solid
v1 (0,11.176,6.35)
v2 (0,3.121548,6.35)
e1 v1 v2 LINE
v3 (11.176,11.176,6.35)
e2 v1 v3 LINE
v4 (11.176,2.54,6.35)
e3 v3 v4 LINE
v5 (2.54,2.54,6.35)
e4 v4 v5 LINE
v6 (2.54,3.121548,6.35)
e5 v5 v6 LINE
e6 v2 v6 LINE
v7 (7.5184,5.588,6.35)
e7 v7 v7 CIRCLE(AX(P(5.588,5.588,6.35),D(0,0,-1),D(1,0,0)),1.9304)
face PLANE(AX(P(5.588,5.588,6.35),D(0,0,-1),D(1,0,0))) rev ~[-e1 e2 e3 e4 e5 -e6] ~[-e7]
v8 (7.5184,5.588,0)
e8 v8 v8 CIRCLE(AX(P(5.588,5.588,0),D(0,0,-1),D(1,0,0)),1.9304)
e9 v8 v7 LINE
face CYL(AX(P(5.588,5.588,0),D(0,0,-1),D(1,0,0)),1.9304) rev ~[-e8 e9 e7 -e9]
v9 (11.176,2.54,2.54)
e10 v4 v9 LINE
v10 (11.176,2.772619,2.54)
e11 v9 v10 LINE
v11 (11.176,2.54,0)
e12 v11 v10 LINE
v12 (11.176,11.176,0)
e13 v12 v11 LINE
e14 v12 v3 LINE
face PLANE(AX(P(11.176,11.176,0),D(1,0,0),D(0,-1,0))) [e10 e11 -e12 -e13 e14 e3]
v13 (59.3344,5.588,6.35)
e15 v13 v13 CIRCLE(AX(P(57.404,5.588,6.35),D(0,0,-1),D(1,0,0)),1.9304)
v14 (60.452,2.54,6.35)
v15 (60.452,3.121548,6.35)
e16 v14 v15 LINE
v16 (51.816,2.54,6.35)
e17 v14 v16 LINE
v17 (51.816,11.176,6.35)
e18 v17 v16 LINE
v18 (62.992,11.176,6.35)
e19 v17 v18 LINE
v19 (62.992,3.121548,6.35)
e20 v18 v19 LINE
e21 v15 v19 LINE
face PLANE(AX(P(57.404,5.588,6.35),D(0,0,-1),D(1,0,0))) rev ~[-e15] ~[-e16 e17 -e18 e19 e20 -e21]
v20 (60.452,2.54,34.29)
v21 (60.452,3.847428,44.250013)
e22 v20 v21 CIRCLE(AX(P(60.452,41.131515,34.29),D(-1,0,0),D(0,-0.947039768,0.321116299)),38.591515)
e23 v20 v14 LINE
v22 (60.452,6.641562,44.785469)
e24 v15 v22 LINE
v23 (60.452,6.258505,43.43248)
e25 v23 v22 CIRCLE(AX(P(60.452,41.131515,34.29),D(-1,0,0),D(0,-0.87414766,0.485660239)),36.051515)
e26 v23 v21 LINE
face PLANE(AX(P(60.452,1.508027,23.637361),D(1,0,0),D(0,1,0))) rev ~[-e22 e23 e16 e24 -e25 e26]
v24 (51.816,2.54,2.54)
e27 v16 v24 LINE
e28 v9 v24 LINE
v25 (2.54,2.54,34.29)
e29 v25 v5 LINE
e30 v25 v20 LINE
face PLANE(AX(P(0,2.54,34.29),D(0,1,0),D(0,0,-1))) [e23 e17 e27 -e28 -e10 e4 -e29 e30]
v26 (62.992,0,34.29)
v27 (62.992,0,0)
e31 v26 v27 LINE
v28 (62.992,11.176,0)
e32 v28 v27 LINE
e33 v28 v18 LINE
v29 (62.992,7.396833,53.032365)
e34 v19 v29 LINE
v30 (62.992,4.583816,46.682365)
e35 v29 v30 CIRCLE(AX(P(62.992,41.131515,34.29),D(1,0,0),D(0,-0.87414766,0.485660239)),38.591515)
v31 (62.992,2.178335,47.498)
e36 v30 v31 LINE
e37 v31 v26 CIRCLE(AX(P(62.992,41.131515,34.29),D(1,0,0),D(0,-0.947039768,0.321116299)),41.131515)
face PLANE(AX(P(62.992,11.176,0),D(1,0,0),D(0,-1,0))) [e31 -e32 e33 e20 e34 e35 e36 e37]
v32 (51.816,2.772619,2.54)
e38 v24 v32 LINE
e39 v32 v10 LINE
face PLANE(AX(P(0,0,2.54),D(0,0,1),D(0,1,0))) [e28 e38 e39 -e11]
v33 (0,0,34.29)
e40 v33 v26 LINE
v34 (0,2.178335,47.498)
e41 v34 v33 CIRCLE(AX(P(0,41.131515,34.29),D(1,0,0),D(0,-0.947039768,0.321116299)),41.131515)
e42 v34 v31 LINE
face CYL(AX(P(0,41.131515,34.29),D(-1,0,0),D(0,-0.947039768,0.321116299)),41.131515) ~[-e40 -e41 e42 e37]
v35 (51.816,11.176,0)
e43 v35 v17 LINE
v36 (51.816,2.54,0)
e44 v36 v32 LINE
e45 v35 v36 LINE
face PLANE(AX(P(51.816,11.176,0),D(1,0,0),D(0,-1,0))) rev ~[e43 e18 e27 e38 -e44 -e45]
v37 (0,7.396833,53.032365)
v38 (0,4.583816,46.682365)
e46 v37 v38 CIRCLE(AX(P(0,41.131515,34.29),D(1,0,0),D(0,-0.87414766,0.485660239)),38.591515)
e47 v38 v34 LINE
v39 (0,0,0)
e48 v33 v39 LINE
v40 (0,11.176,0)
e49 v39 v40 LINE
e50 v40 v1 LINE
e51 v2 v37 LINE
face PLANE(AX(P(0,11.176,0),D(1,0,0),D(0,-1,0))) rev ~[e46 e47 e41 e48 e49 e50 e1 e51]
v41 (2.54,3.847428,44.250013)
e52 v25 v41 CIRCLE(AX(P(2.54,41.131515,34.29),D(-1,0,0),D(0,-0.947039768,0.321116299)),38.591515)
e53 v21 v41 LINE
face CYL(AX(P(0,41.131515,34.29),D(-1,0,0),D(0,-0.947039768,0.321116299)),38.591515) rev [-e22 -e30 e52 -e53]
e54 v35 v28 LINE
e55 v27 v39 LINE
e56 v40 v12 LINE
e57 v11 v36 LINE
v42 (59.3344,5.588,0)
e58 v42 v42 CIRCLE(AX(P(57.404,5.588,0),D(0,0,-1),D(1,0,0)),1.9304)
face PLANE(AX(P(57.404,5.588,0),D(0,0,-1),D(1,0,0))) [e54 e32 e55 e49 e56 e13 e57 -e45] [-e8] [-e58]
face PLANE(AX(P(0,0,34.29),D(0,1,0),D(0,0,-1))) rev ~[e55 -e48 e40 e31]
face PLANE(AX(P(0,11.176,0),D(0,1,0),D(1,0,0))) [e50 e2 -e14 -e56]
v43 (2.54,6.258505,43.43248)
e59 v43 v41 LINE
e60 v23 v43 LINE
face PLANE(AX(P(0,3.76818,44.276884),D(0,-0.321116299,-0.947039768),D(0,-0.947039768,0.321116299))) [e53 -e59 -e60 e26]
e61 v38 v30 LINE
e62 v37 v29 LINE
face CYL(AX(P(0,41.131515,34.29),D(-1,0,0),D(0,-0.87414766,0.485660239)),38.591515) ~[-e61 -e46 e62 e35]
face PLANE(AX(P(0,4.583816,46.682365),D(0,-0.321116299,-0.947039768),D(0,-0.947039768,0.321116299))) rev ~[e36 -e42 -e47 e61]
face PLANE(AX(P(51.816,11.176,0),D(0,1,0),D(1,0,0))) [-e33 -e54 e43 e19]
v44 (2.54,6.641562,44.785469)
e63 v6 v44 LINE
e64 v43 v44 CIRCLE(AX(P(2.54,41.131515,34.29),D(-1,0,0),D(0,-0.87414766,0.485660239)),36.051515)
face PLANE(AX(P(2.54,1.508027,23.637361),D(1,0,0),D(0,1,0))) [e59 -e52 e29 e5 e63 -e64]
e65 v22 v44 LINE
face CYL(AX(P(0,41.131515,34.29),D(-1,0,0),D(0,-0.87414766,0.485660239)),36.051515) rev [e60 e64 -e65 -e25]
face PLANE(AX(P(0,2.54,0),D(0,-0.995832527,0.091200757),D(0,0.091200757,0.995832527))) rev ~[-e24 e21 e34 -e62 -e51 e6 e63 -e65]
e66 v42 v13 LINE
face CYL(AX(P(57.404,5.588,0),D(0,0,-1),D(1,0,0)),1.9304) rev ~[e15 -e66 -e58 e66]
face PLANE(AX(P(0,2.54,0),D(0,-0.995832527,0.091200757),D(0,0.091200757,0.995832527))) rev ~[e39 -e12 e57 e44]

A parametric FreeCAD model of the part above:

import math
import FreeCAD as App
import Part
import Sketcher
Q = App.Units.Quantity


def faces_at(feature, points):
    """Names of the faces that lie closest to the given points."""
    faces = feature.Shape.Faces
    near = lambda p: min(range(len(faces)), key=lambda i: faces[i].distToShape(Part.Vertex(*p))[0])
    return sorted({f"Face{near(p) + 1}" for p in points})


def add_polygon(sketch, points):
    """Adds a closed chain of lines whose ends are joined by coincident constraints."""
    first, n = sketch.GeometryCount, len(points)
    for a, b in zip(points, points[1:] + points[:1]):
        sketch.addGeometry(Part.LineSegment(App.Vector(*a, 0), App.Vector(*b, 0)), False)
    for i in range(n):
        sketch.addConstraint(Sketcher.Constraint("Coincident", first + i, 2, first + (i + 1) % n, 1))

doc = App.newDocument("Part")
params = doc.addObject("Spreadsheet::Sheet", "Params")
for row, (alias, value) in enumerate([
    ("sketch1_width", "0.1 in"),
    ("sketch1_length", "0.1 in"),
    ("sketch1_height", "1.35 in"),
    ("pad1_length", "2.48 in"),
    ("thickness_wall", "0.1 in"),
    ("sketch2_diameter", "0.152 in"),
    ("sketch2_width", "0.44 in"),
    ("pad2_length", "0.25 in"),
], start=1):
    params.set(f"A{row}", alias)
    params.set(f"B{row}", "=" + value)
    params.setAlias(f"B{row}", alias)

body = doc.addObject("PartDesign::Body", "Body")

# Sketch on YZ plane
sketch1 = doc.addObject("Sketcher::SketchObject", "Sketch")
body.addObject(sketch1)
sketch1.AttachmentSupport = (doc.YZ_Plane, [""])
sketch1.MapMode = "FlatFace"
sketch1.addGeometry(Part.LineSegment(App.Vector(0, 34.3, 0), App.Vector(0, 0, 0)), False)
sketch1.addGeometry(Part.LineSegment(App.Vector(0, 0, 0), App.Vector(2.5, 0, 0)), False)
sketch1.addGeometry(Part.LineSegment(App.Vector(2.5, 0, 0), App.Vector(7.4, 53, 0)), False)
sketch1.addGeometry(Part.ArcOfCircle(Part.Circle(App.Vector(41.1, 34.3, 0), App.Vector(0, 0, 1), 38.6), math.radians(150.94), math.radians(161.27)), False)
sketch1.addGeometry(Part.LineSegment(App.Vector(4.6, 46.7, 0), App.Vector(2.2, 47.5, 0)), False)
sketch1.addGeometry(Part.ArcOfCircle(Part.Circle(App.Vector(41.1, 34.3, 0), App.Vector(0, 0, 1), 41.1), math.radians(161.27), math.radians(180)), False)
sketch1.addConstraint(Sketcher.Constraint("Coincident", 0, 2, 1, 1))
sketch1.addConstraint(Sketcher.Constraint("Coincident", 1, 2, 2, 1))
sketch1.addConstraint(Sketcher.Constraint("Coincident", 2, 2, 3, 1))
sketch1.addConstraint(Sketcher.Constraint("Coincident", 3, 2, 4, 1))
sketch1.addConstraint(Sketcher.Constraint("Coincident", 4, 2, 5, 1))
sketch1.addConstraint(Sketcher.Constraint("Tangent", 5, 2, 0, 1))
sketch1.addConstraint(Sketcher.Constraint("Vertical", 0))
sketch1.addConstraint(Sketcher.Constraint("Horizontal", 1))
sketch1.addConstraint(Sketcher.Constraint("Coincident", 0, 2, -1, 1))
sketch1.addConstraint(Sketcher.Constraint("Coincident", 5, 3, 3, 3))
sketch1.addConstraint(Sketcher.Constraint("DistanceX", 1, 1, 1, 2, Q("0.1 in")))
sketch1.addConstraint(Sketcher.Constraint("Distance", 4, Q("0.1 in")))
sketch1.addConstraint(Sketcher.Constraint("DistanceY", 0, 2, 0, 1, Q("1.35 in")))
sketch1.addConstraint(Sketcher.Constraint("DistanceY", -1, 1, 4, 2, Q("1.87 in")))
sketch1.addConstraint(Sketcher.Constraint("DistanceY", 3, 2, 2, 2, Q("0.25 in")))
sketch1.addConstraint(Sketcher.Constraint("Radius", 3, Q("38.591515 mm")))
sketch1.addConstraint(Sketcher.Constraint("Distance", 2, Q("53.2543 mm")))
sketch1.setExpression("Constraints[10]", "Params.sketch1_width")
sketch1.setExpression("Constraints[11]", "Params.sketch1_length")
sketch1.setExpression("Constraints[12]", "Params.sketch1_height")
pad1 = doc.addObject("PartDesign::Pad", "Pad")
body.addObject(pad1)
pad1.Profile = sketch1
pad1.setExpression("Length", "Params.pad1_length")
doc.recompute()

thickness = doc.addObject("PartDesign::Thickness", "Thickness")
body.addObject(thickness)
thickness.Base = (pad1, faces_at(pad1, [(31.496, 4.968, 26.516)]))
thickness.setExpression("Value", "Params.thickness_wall")
thickness.Reversed = True
thickness.Join = "Intersection"

# Sketch on XY plane
sketch2 = doc.addObject("Sketcher::SketchObject", "Sketch001")
body.addObject(sketch2)
sketch2.AttachmentSupport = (doc.XY_Plane, [""])
sketch2.MapMode = "FlatFace"
add_polygon(sketch2, [(51.8, 0), (51.8, 11.2), (63, 11.2), (63, 0)])  # lines 0-3
sketch2.addGeometry(Part.Circle(App.Vector(57.4, 5.6, 0), App.Vector(0, 0, 1), 1.9), False)  # 4
add_polygon(sketch2, [(0, 0), (0, 11.2), (11.2, 11.2), (11.2, 0)])  # lines 5-8
sketch2.addGeometry(Part.Circle(App.Vector(5.6, 5.6, 0), App.Vector(0, 0, 1), 1.9), False)  # 9
sketch2.addConstraint(Sketcher.Constraint("Vertical", 0))
sketch2.addConstraint(Sketcher.Constraint("Horizontal", 1))
sketch2.addConstraint(Sketcher.Constraint("Vertical", 2))
sketch2.addConstraint(Sketcher.Constraint("Horizontal", 3))
sketch2.addConstraint(Sketcher.Constraint("Vertical", 5))
sketch2.addConstraint(Sketcher.Constraint("Horizontal", 6))
sketch2.addConstraint(Sketcher.Constraint("Vertical", 7))
sketch2.addConstraint(Sketcher.Constraint("Horizontal", 8))
sketch2.addConstraint(Sketcher.Constraint("Coincident", 8, 2, -1, 1))
sketch2.addConstraint(Sketcher.Constraint("Equal", 4, 9))
sketch2.addConstraint(Sketcher.Constraint("PointOnObject", 2, 2, -1))
sketch2.addConstraint(Sketcher.Constraint("Horizontal", 4, 3, 9, 3))
sketch2.addConstraint(Sketcher.Constraint("Horizontal", 1, 2, 5, 2))
sketch2.addConstraint(Sketcher.Constraint("Equal", 3, 6))
sketch2.addConstraint(Sketcher.Constraint("Equal", 8, 0))
sketch2.addConstraint(Sketcher.Constraint("Diameter", 4, Q("0.152 in")))
sketch2.addConstraint(Sketcher.Constraint("DistanceX", 1, 1, 1, 2, Q("0.44 in")))
sketch2.addConstraint(Sketcher.Constraint("DistanceX", 6, 2, 0, 2, Q("1.6 in")))
sketch2.addConstraint(Sketcher.Constraint("DistanceX", -1, 1, 4, 3, Q("2.26 in")))
sketch2.addConstraint(Sketcher.Constraint("DistanceY", -1, 1, 4, 3, Q("0.22 in")))
sketch2.addConstraint(Sketcher.Constraint("DistanceX", -1, 1, 9, 3, Q("0.22 in")))
sketch2.setExpression("Constraints[23]", "Params.sketch2_diameter")
sketch2.setExpression("Constraints[24]", "Params.sketch2_width")
pad2 = doc.addObject("PartDesign::Pad", "Pad001")
body.addObject(pad2)
pad2.Profile = sketch2
pad2.setExpression("Length", "Params.pad2_length")

doc.recompute()
